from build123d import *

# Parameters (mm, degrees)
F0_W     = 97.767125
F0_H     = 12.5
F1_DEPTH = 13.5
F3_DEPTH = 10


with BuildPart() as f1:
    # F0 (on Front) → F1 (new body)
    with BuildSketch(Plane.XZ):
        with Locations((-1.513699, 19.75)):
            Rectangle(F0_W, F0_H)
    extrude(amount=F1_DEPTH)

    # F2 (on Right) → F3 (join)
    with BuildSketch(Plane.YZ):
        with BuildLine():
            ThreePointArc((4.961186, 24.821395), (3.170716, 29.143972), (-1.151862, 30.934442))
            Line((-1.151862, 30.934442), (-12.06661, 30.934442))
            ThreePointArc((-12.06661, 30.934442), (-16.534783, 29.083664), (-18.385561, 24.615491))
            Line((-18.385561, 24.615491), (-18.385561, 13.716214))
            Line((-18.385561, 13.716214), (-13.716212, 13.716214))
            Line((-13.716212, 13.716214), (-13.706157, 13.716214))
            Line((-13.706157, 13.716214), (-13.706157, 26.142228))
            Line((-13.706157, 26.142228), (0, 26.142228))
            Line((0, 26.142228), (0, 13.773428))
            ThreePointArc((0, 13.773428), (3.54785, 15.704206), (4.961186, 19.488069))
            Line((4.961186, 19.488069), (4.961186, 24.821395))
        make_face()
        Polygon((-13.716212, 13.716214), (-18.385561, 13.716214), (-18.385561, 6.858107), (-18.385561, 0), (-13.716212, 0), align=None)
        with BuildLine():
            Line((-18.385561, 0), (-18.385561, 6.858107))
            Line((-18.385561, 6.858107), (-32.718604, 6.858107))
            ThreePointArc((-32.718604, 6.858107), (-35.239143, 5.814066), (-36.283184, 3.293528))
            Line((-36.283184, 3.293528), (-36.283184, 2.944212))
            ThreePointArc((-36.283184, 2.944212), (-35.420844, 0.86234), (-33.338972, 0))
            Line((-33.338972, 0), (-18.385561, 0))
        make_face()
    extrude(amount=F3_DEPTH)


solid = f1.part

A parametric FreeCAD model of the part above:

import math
import FreeCAD as App
import Part
import Sketcher
Q = App.Units.Quantity


def add_polygon(sketch, points):
    """Adds a closed chain of lines whose ends are joined by coincident constraints."""
    first, n = sketch.GeometryCount, len(points)
    for a, b in zip(points, points[1:] + points[:1]):
        sketch.addGeometry(Part.LineSegment(App.Vector(*a, 0), App.Vector(*b, 0)), False)
    for i in range(n):
        sketch.addConstraint(Sketcher.Constraint("Coincident", first + i, 2, first + (i + 1) % n, 1))

doc = App.newDocument("Part")
params = doc.addObject("Spreadsheet::Sheet", "Params")
for row, (alias, value) in enumerate([
    ("sketch1_height", "12.5 mm"),
    ("pad1_length", "13.5 mm"),
    ("pad2_length", "10 mm"),
], start=1):
    params.set(f"A{row}", alias)
    params.set(f"B{row}", "=" + value)
    params.setAlias(f"B{row}", alias)

body = doc.addObject("PartDesign::Body", "Body")

# Sketch on XZ plane
sketch1 = body.newObject("Sketcher::SketchObject", "Sketch")
sketch1.AttachmentSupport = (doc.getObject("XZ_Plane"), [""])
sketch1.MapMode = "FlatFace"
add_polygon(sketch1, [(-50, 26), (-50, 14), (47, 14), (47, 26)])  # lines 0-3
sketch1.addConstraint(Sketcher.Constraint("Vertical", 0))
sketch1.addConstraint(Sketcher.Constraint("Horizontal", 1))
sketch1.addConstraint(Sketcher.Constraint("Vertical", 2))
sketch1.addConstraint(Sketcher.Constraint("Horizontal", 3))
sketch1.addConstraint(Sketcher.Constraint("DistanceY", 0, 2, 0, 1, Q("12.5 mm")))
sketch1.addConstraint(Sketcher.Constraint("DistanceY", -1, 1, 2, 2, Q("26 mm")))
sketch1.addConstraint(Sketcher.Constraint("DistanceX", 1, 1, 1, 2, Q("97.767125 mm")))
sketch1.addConstraint(Sketcher.Constraint("DistanceX", 0, 2, -1, 1, Q("50.397261 mm")))
sketch1.setExpression("Constraints[8]", "Params.sketch1_height")
pad1 = body.newObject("PartDesign::Pad", "Pad")
pad1.Profile = sketch1
pad1.setExpression("Length", "Params.pad1_length")

# Sketch on YZ plane
sketch2 = body.newObject("Sketcher::SketchObject", "Sketch001")
sketch2.AttachmentSupport = (doc.getObject("YZ_Plane"), [""])
sketch2.MapMode = "FlatFace"
sketch2.addGeometry(Part.ArcOfCircle(Part.Circle(App.Vector(-1.152, 24.821, 0), App.Vector(0, 0, 1), 6.113), math.radians(0), math.radians(90)), False)
sketch2.addGeometry(Part.LineSegment(App.Vector(-1.152, 30.934, 0), App.Vector(-12.067, 30.934, 0)), False)
sketch2.addGeometry(Part.ArcOfCircle(Part.Circle(App.Vector(-12.067, 24.615, 0), App.Vector(0, 0, 1), 6.319), math.radians(90), math.radians(180)), False)
sketch2.addGeometry(Part.LineSegment(App.Vector(-18.386, 24.615, 0), App.Vector(-18.386, 6.858, 0)), False)
sketch2.addGeometry(Part.LineSegment(App.Vector(-18.386, 6.858, 0), App.Vector(-32.719, 6.858, 0)), False)
sketch2.addGeometry(Part.ArcOfCircle(Part.Circle(App.Vector(-32.719, 3.294, 0), App.Vector(0, 0, 1), 3.565), math.radians(90), math.radians(180)), False)
sketch2.addGeometry(Part.LineSegment(App.Vector(-36.283, 3.294, 0), App.Vector(-36.283, 2.944, 0)), False)
sketch2.addGeometry(Part.ArcOfCircle(Part.Circle(App.Vector(-33.339, 2.944, 0), App.Vector(0, 0, 1), 2.944), math.radians(-180), math.radians(-90)), False)
sketch2.addGeometry(Part.LineSegment(App.Vector(-33.339, 0, 0), App.Vector(-13.716, 0, 0)), False)
sketch2.addGeometry(Part.LineSegment(App.Vector(-13.716, 0, 0), App.Vector(-13.716, 13.716, 0)), False)
sketch2.addGeometry(Part.LineSegment(App.Vector(-13.716, 13.716, 0), App.Vector(-13.706, 13.716, 0)), False)
sketch2.addGeometry(Part.LineSegment(App.Vector(-13.706, 13.716, 0), App.Vector(-13.706, 26.142, 0)), False)
sketch2.addGeometry(Part.LineSegment(App.Vector(-13.706, 26.142, 0), App.Vector(0, 26.142, 0)), False)
sketch2.addGeometry(Part.LineSegment(App.Vector(0, 26.142, 0), App.Vector(0, 13.773, 0)), False)
sketch2.addGeometry(Part.ArcOfCircle(Part.Circle(App.Vector(-0.811, 19.488, 0), App.Vector(0, 0, 1), 5.772), math.radians(-82), math.radians(0)), False)
sketch2.addGeometry(Part.LineSegment(App.Vector(4.961, 19.488, 0), App.Vector(4.961, 24.821, 0)), False)
sketch2.addConstraint(Sketcher.Constraint("Tangent", 0, 2, 1, 1))
sketch2.addConstraint(Sketcher.Constraint("Tangent", 1, 2, 2, 1))
sketch2.addConstraint(Sketcher.Constraint("Tangent", 2, 2, 3, 1))
sketch2.addConstraint(Sketcher.Constraint("Coincident", 3, 2, 4, 1))
sketch2.addConstraint(Sketcher.Constraint("Tangent", 4, 2, 5, 1))
sketch2.addConstraint(Sketcher.Constraint("Tangent", 5, 2, 6, 1))
sketch2.addConstraint(Sketcher.Constraint("Tangent", 6, 2, 7, 1))
sketch2.addConstraint(Sketcher.Constraint("Tangent", 7, 2, 8, 1))
sketch2.addConstraint(Sketcher.Constraint("Coincident", 8, 2, 9, 1))
sketch2.addConstraint(Sketcher.Constraint("Coincident", 9, 2, 10, 1))
sketch2.addConstraint(Sketcher.Constraint("Coincident", 10, 2, 11, 1))
sketch2.addConstraint(Sketcher.Constraint("Coincident", 11, 2, 12, 1))
sketch2.addConstraint(Sketcher.Constraint("Coincident", 12, 2, 13, 1))
sketch2.addConstraint(Sketcher.Constraint("Coincident", 13, 2, 14, 1))
sketch2.addConstraint(Sketcher.Constraint("Tangent", 14, 2, 15, 1))
sketch2.addConstraint(Sketcher.Constraint("Tangent", 15, 2, 0, 1))
sketch2.addConstraint(Sketcher.Constraint("Horizontal", 1))
sketch2.addConstraint(Sketcher.Constraint("Vertical", 3))
sketch2.addConstraint(Sketcher.Constraint("Horizontal", 4))
sketch2.addConstraint(Sketcher.Constraint("Vertical", 6))
sketch2.addConstraint(Sketcher.Constraint("Horizontal", 8))
sketch2.addConstraint(Sketcher.Constraint("Vertical", 9))
sketch2.addConstraint(Sketcher.Constraint("Horizontal", 10))
sketch2.addConstraint(Sketcher.Constraint("Vertical", 11))
sketch2.addConstraint(Sketcher.Constraint("Horizontal", 12))
sketch2.addConstraint(Sketcher.Constraint("Vertical", 13))
sketch2.addConstraint(Sketcher.Constraint("Vertical", 15))
sketch2.addConstraint(Sketcher.Constraint("PointOnObject", 7, 2, -1))
sketch2.addConstraint(Sketcher.Constraint("PointOnObject", 12, 2, -2))
sketch2.addConstraint(Sketcher.Constraint("Radius", 2, Q("6.318951 mm")))
sketch2.addConstraint(Sketcher.Constraint("Radius", 5, Q("3.564579 mm")))
sketch2.addConstraint(Sketcher.Constraint("DistanceY", 13, 2, 13, 1, Q("12.3688 mm")))
sketch2.addConstraint(Sketcher.Constraint("Radius", 0, Q("6.113047 mm")))
sketch2.addConstraint(Sketcher.Constraint("Radius", 7, Q("2.944213 mm")))
sketch2.addConstraint(Sketcher.Constraint("Radius", 14, Q("5.771855 mm")))
sketch2.addConstraint(Sketcher.Constraint("DistanceX", 1, 2, 1, 1, Q("10.914748 mm")))
sketch2.addConstraint(Sketcher.Constraint("DistanceX", 8, 1, 8, 2, Q("19.62276 mm")))
sketch2.addConstraint(Sketcher.Constraint("DistanceX", 7, 3, 14, 3, Q("32.528302 mm")))
sketch2.addConstraint(Sketcher.Constraint("DistanceX", 10, 1, 10, 2, Q("0.010055 mm")))
sketch2.addConstraint(Sketcher.Constraint("DistanceX", 12, 1, 12, 2, Q("13.706157 mm")))
sketch2.addConstraint(Sketcher.Constraint("DistanceY", 3, 2, 3, 1, Q("17.757384 mm")))
sketch2.addConstraint(Sketcher.Constraint("DistanceY", 6, 2, 6, 1, Q("0.349316 mm")))
sketch2.addConstraint(Sketcher.Constraint("DistanceY", 9, 1, 9, 2, Q("13.716214 mm")))
sketch2.addConstraint(Sketcher.Constraint("DistanceY", 11, 1, 11, 2, Q("12.426014 mm")))
pad2 = body.newObject("PartDesign::Pad", "Pad001")
pad2.Profile = sketch2
pad2.setExpression("Length", "Params.pad2_length")

doc.recompute()
